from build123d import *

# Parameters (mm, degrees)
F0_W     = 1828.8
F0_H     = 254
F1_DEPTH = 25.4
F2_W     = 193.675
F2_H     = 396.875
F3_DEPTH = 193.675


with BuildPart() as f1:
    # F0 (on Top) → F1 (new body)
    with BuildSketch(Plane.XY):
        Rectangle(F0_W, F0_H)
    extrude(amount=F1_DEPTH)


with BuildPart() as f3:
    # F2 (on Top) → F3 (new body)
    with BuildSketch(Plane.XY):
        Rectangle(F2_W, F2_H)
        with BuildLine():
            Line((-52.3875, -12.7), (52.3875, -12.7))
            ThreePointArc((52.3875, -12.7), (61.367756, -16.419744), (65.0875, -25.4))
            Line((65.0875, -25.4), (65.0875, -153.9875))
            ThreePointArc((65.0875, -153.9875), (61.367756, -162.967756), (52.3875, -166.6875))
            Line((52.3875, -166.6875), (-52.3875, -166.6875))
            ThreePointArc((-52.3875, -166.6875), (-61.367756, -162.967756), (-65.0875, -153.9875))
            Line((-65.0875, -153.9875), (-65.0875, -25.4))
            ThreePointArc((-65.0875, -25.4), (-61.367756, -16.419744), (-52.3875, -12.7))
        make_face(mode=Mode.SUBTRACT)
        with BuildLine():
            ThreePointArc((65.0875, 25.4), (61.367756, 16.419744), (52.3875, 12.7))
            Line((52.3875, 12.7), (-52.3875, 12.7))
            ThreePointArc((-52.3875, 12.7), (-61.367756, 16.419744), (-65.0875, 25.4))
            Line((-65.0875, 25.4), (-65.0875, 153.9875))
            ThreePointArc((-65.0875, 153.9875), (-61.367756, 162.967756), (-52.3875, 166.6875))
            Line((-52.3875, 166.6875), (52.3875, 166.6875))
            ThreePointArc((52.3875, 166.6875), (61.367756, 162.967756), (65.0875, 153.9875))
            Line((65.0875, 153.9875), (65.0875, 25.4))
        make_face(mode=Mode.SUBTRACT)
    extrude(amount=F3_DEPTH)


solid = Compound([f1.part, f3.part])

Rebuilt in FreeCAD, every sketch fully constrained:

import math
import FreeCAD as App
import Part
import Sketcher
from FreeCAD import Vector
Q = App.Units.Quantity

doc = App.newDocument("Part")
body = doc.addObject("PartDesign::Body", "Body")

sketch1 = body.newObject("Sketcher::SketchObject", "Sketch")
sketch1.AttachmentSupport = (doc.getObject("XY_Plane"), [""])
sketch1.MapMode = "FlatFace"
sketch1.addGeometry(Part.LineSegment(Vector(-914.4, 127, 0), Vector(-914.4, -127, 0)), False)
sketch1.addGeometry(Part.LineSegment(Vector(-914.4, -127, 0), Vector(914.4, -127, 0)), False)
sketch1.addGeometry(Part.LineSegment(Vector(914.4, -127, 0), Vector(914.4, 127, 0)), False)
sketch1.addGeometry(Part.LineSegment(Vector(914.4, 127, 0), Vector(-914.4, 127, 0)), False)
sketch1.addConstraint(Sketcher.Constraint("Coincident", 0, 2, 1, 1))
sketch1.addConstraint(Sketcher.Constraint("Coincident", 1, 2, 2, 1))
sketch1.addConstraint(Sketcher.Constraint("Coincident", 2, 2, 3, 1))
sketch1.addConstraint(Sketcher.Constraint("Coincident", 3, 2, 0, 1))
sketch1.addConstraint(Sketcher.Constraint("Vertical", 0))
sketch1.addConstraint(Sketcher.Constraint("Horizontal", 1))
sketch1.addConstraint(Sketcher.Constraint("Vertical", 2))
sketch1.addConstraint(Sketcher.Constraint("Horizontal", 3))
sketch1.addConstraint(Sketcher.Constraint("Symmetric", 0, 2, 2, 2, -1, 1))
sketch1.addConstraint(Sketcher.Constraint("DistanceX", 1, 1, 1, 2, Q("72 in")))
sketch1.addConstraint(Sketcher.Constraint("DistanceY", 0, 2, 0, 1, Q("10 in")))
pad1 = body.newObject("PartDesign::Pad", "Pad")
pad1.Profile = sketch1
pad1.Length = Q("1 in")
body2 = doc.addObject("PartDesign::Body", "Body001")

sketch2 = body2.newObject("Sketcher::SketchObject", "Sketch001")
sketch2.AttachmentSupport = (doc.getObject("XY_Plane001"), [""])
sketch2.MapMode = "FlatFace"
sketch2.addGeometry(Part.LineSegment(Vector(-96.8375, 198.4375, 0), Vector(-96.8375, -198.4375, 0)), False)
sketch2.addGeometry(Part.LineSegment(Vector(-96.8375, -198.4375, 0), Vector(96.8375, -198.4375, 0)), False)
sketch2.addGeometry(Part.LineSegment(Vector(96.8375, -198.4375, 0), Vector(96.8375, 198.4375, 0)), False)
sketch2.addGeometry(Part.LineSegment(Vector(96.8375, 198.4375, 0), Vector(-96.8375, 198.4375, 0)), False)
sketch2.addGeometry(Part.ArcOfCircle(Part.Circle(Vector(-52.3875, -25.4, 0), Vector(0, 0, 1), 12.7), math.radians(90.000002), math.radians(179.999998)), False)
sketch2.addGeometry(Part.LineSegment(Vector(-52.3875, -12.7, 0), Vector(52.3875, -12.7, 0)), False)
sketch2.addGeometry(Part.ArcOfCircle(Part.Circle(Vector(52.3875, -25.4, 0), Vector(0, 0, 1), 12.7), math.radians(0.000002), math.radians(89.999998)), False)
sketch2.addGeometry(Part.LineSegment(Vector(65.0875, -25.4, 0), Vector(65.0875, -153.9875, 0)), False)
sketch2.addGeometry(Part.ArcOfCircle(Part.Circle(Vector(52.3875, -153.9875, 0), Vector(0, 0, 1), 12.7), math.radians(-89.999998), math.radians(-0.000002)), False)
sketch2.addGeometry(Part.LineSegment(Vector(52.3875, -166.6875, 0), Vector(-52.3875, -166.6875, 0)), False)
sketch2.addGeometry(Part.ArcOfCircle(Part.Circle(Vector(-52.3875, -153.9875, 0), Vector(0, 0, 1), 12.7), math.radians(-179.999998), math.radians(-90.000002)), False)
sketch2.addGeometry(Part.LineSegment(Vector(-65.0875, -153.9875, 0), Vector(-65.0875, -25.4, 0)), False)
sketch2.addGeometry(Part.LineSegment(Vector(65.0875, 153.9875, 0), Vector(65.0875, 25.4, 0)), False)
sketch2.addGeometry(Part.ArcOfCircle(Part.Circle(Vector(52.3875, 25.4, 0), Vector(0, 0, 1), 12.7), math.radians(-89.999998), math.radians(-0.000002)), False)
sketch2.addGeometry(Part.LineSegment(Vector(52.3875, 12.7, 0), Vector(-52.3875, 12.7, 0)), False)
sketch2.addGeometry(Part.ArcOfCircle(Part.Circle(Vector(-52.3875, 25.4, 0), Vector(0, 0, 1), 12.7), math.radians(-179.999998), math.radians(-90.000002)), False)
sketch2.addGeometry(Part.LineSegment(Vector(-65.0875, 25.4, 0), Vector(-65.0875, 153.9875, 0)), False)
sketch2.addGeometry(Part.ArcOfCircle(Part.Circle(Vector(-52.3875, 153.9875, 0), Vector(0, 0, 1), 12.7), math.radians(90.000002), math.radians(179.999998)), False)
sketch2.addGeometry(Part.LineSegment(Vector(-52.3875, 166.6875, 0), Vector(52.3875, 166.6875, 0)), False)
sketch2.addGeometry(Part.ArcOfCircle(Part.Circle(Vector(52.3875, 153.9875, 0), Vector(0, 0, 1), 12.7), math.radians(0.000002), math.radians(89.999998)), False)
sketch2.addConstraint(Sketcher.Constraint("Coincident", 0, 2, 1, 1))
sketch2.addConstraint(Sketcher.Constraint("Coincident", 1, 2, 2, 1))
sketch2.addConstraint(Sketcher.Constraint("Coincident", 2, 2, 3, 1))
sketch2.addConstraint(Sketcher.Constraint("Coincident", 3, 2, 0, 1))
sketch2.addConstraint(Sketcher.Constraint("Tangent", 4, 1, 5, 1))
sketch2.addConstraint(Sketcher.Constraint("Tangent", 5, 2, 6, 2))
sketch2.addConstraint(Sketcher.Constraint("Tangent", 6, 1, 7, 1))
sketch2.addConstraint(Sketcher.Constraint("Tangent", 7, 2, 8, 2))
sketch2.addConstraint(Sketcher.Constraint("Tangent", 8, 1, 9, 1))
sketch2.addConstraint(Sketcher.Constraint("Tangent", 9, 2, 10, 2))
sketch2.addConstraint(Sketcher.Constraint("Tangent", 10, 1, 11, 1))
sketch2.addConstraint(Sketcher.Constraint("Tangent", 11, 2, 4, 2))
sketch2.addConstraint(Sketcher.Constraint("Tangent", 12, 2, 13, 2))
sketch2.addConstraint(Sketcher.Constraint("Tangent", 13, 1, 14, 1))
sketch2.addConstraint(Sketcher.Constraint("Tangent", 14, 2, 15, 2))
sketch2.addConstraint(Sketcher.Constraint("Tangent", 15, 1, 16, 1))
sketch2.addConstraint(Sketcher.Constraint("Tangent", 16, 2, 17, 2))
sketch2.addConstraint(Sketcher.Constraint("Tangent", 17, 1, 18, 1))
sketch2.addConstraint(Sketcher.Constraint("Tangent", 18, 2, 19, 2))
sketch2.addConstraint(Sketcher.Constraint("Tangent", 19, 1, 12, 1))
sketch2.addConstraint(Sketcher.Constraint("Vertical", 0))
sketch2.addConstraint(Sketcher.Constraint("Horizontal", 1))
sketch2.addConstraint(Sketcher.Constraint("Vertical", 2))
sketch2.addConstraint(Sketcher.Constraint("Horizontal", 3))
sketch2.addConstraint(Sketcher.Constraint("Horizontal", 5))
sketch2.addConstraint(Sketcher.Constraint("Vertical", 7))
sketch2.addConstraint(Sketcher.Constraint("Horizontal", 9))
sketch2.addConstraint(Sketcher.Constraint("Vertical", 11))
sketch2.addConstraint(Sketcher.Constraint("Vertical", 12))
sketch2.addConstraint(Sketcher.Constraint("Horizontal", 14))
sketch2.addConstraint(Sketcher.Constraint("Vertical", 16))
sketch2.addConstraint(Sketcher.Constraint("Horizontal", 18))
sketch2.addConstraint(Sketcher.Constraint("Equal", 4, 6))
sketch2.addConstraint(Sketcher.Constraint("Equal", 6, 8))
sketch2.addConstraint(Sketcher.Constraint("Equal", 8, 10))
sketch2.addConstraint(Sketcher.Constraint("Equal", 10, 13))
sketch2.addConstraint(Sketcher.Constraint("Equal", 13, 15))
sketch2.addConstraint(Sketcher.Constraint("Equal", 15, 17))
sketch2.addConstraint(Sketcher.Constraint("Equal", 17, 19))
sketch2.addConstraint(Sketcher.Constraint("Symmetric", 4, 3, 13, 3, -1, 1))
sketch2.addConstraint(Sketcher.Constraint("Symmetric", 8, 3, 17, 3, -1, 1))
sketch2.addConstraint(Sketcher.Constraint("Symmetric", 0, 2, 2, 2, -1, 1))
sketch2.addConstraint(Sketcher.Constraint("Vertical", 8, 3, 13, 3))
sketch2.addConstraint(Sketcher.Constraint("Radius", 4, Q("0.5 in")))
sketch2.addConstraint(Sketcher.Constraint("DistanceY", 4, 3, -1, 1, Q("1 in")))
sketch2.addConstraint(Sketcher.Constraint("DistanceX", 1, 1, 1, 2, Q("7.625 in")))
sketch2.addConstraint(Sketcher.Constraint("DistanceX", 5, 1, 5, 2, Q("4.125 in")))
sketch2.addConstraint(Sketcher.Constraint("DistanceY", 0, 2, 0, 1, Q("15.625 in")))
sketch2.addConstraint(Sketcher.Constraint("DistanceY", 7, 2, 7, 1, Q("5.0625 in")))
pad2 = body2.newObject("PartDesign::Pad", "Pad001")
pad2.Profile = sketch2
pad2.Length = Q("7.625 in")

doc.recompute()
